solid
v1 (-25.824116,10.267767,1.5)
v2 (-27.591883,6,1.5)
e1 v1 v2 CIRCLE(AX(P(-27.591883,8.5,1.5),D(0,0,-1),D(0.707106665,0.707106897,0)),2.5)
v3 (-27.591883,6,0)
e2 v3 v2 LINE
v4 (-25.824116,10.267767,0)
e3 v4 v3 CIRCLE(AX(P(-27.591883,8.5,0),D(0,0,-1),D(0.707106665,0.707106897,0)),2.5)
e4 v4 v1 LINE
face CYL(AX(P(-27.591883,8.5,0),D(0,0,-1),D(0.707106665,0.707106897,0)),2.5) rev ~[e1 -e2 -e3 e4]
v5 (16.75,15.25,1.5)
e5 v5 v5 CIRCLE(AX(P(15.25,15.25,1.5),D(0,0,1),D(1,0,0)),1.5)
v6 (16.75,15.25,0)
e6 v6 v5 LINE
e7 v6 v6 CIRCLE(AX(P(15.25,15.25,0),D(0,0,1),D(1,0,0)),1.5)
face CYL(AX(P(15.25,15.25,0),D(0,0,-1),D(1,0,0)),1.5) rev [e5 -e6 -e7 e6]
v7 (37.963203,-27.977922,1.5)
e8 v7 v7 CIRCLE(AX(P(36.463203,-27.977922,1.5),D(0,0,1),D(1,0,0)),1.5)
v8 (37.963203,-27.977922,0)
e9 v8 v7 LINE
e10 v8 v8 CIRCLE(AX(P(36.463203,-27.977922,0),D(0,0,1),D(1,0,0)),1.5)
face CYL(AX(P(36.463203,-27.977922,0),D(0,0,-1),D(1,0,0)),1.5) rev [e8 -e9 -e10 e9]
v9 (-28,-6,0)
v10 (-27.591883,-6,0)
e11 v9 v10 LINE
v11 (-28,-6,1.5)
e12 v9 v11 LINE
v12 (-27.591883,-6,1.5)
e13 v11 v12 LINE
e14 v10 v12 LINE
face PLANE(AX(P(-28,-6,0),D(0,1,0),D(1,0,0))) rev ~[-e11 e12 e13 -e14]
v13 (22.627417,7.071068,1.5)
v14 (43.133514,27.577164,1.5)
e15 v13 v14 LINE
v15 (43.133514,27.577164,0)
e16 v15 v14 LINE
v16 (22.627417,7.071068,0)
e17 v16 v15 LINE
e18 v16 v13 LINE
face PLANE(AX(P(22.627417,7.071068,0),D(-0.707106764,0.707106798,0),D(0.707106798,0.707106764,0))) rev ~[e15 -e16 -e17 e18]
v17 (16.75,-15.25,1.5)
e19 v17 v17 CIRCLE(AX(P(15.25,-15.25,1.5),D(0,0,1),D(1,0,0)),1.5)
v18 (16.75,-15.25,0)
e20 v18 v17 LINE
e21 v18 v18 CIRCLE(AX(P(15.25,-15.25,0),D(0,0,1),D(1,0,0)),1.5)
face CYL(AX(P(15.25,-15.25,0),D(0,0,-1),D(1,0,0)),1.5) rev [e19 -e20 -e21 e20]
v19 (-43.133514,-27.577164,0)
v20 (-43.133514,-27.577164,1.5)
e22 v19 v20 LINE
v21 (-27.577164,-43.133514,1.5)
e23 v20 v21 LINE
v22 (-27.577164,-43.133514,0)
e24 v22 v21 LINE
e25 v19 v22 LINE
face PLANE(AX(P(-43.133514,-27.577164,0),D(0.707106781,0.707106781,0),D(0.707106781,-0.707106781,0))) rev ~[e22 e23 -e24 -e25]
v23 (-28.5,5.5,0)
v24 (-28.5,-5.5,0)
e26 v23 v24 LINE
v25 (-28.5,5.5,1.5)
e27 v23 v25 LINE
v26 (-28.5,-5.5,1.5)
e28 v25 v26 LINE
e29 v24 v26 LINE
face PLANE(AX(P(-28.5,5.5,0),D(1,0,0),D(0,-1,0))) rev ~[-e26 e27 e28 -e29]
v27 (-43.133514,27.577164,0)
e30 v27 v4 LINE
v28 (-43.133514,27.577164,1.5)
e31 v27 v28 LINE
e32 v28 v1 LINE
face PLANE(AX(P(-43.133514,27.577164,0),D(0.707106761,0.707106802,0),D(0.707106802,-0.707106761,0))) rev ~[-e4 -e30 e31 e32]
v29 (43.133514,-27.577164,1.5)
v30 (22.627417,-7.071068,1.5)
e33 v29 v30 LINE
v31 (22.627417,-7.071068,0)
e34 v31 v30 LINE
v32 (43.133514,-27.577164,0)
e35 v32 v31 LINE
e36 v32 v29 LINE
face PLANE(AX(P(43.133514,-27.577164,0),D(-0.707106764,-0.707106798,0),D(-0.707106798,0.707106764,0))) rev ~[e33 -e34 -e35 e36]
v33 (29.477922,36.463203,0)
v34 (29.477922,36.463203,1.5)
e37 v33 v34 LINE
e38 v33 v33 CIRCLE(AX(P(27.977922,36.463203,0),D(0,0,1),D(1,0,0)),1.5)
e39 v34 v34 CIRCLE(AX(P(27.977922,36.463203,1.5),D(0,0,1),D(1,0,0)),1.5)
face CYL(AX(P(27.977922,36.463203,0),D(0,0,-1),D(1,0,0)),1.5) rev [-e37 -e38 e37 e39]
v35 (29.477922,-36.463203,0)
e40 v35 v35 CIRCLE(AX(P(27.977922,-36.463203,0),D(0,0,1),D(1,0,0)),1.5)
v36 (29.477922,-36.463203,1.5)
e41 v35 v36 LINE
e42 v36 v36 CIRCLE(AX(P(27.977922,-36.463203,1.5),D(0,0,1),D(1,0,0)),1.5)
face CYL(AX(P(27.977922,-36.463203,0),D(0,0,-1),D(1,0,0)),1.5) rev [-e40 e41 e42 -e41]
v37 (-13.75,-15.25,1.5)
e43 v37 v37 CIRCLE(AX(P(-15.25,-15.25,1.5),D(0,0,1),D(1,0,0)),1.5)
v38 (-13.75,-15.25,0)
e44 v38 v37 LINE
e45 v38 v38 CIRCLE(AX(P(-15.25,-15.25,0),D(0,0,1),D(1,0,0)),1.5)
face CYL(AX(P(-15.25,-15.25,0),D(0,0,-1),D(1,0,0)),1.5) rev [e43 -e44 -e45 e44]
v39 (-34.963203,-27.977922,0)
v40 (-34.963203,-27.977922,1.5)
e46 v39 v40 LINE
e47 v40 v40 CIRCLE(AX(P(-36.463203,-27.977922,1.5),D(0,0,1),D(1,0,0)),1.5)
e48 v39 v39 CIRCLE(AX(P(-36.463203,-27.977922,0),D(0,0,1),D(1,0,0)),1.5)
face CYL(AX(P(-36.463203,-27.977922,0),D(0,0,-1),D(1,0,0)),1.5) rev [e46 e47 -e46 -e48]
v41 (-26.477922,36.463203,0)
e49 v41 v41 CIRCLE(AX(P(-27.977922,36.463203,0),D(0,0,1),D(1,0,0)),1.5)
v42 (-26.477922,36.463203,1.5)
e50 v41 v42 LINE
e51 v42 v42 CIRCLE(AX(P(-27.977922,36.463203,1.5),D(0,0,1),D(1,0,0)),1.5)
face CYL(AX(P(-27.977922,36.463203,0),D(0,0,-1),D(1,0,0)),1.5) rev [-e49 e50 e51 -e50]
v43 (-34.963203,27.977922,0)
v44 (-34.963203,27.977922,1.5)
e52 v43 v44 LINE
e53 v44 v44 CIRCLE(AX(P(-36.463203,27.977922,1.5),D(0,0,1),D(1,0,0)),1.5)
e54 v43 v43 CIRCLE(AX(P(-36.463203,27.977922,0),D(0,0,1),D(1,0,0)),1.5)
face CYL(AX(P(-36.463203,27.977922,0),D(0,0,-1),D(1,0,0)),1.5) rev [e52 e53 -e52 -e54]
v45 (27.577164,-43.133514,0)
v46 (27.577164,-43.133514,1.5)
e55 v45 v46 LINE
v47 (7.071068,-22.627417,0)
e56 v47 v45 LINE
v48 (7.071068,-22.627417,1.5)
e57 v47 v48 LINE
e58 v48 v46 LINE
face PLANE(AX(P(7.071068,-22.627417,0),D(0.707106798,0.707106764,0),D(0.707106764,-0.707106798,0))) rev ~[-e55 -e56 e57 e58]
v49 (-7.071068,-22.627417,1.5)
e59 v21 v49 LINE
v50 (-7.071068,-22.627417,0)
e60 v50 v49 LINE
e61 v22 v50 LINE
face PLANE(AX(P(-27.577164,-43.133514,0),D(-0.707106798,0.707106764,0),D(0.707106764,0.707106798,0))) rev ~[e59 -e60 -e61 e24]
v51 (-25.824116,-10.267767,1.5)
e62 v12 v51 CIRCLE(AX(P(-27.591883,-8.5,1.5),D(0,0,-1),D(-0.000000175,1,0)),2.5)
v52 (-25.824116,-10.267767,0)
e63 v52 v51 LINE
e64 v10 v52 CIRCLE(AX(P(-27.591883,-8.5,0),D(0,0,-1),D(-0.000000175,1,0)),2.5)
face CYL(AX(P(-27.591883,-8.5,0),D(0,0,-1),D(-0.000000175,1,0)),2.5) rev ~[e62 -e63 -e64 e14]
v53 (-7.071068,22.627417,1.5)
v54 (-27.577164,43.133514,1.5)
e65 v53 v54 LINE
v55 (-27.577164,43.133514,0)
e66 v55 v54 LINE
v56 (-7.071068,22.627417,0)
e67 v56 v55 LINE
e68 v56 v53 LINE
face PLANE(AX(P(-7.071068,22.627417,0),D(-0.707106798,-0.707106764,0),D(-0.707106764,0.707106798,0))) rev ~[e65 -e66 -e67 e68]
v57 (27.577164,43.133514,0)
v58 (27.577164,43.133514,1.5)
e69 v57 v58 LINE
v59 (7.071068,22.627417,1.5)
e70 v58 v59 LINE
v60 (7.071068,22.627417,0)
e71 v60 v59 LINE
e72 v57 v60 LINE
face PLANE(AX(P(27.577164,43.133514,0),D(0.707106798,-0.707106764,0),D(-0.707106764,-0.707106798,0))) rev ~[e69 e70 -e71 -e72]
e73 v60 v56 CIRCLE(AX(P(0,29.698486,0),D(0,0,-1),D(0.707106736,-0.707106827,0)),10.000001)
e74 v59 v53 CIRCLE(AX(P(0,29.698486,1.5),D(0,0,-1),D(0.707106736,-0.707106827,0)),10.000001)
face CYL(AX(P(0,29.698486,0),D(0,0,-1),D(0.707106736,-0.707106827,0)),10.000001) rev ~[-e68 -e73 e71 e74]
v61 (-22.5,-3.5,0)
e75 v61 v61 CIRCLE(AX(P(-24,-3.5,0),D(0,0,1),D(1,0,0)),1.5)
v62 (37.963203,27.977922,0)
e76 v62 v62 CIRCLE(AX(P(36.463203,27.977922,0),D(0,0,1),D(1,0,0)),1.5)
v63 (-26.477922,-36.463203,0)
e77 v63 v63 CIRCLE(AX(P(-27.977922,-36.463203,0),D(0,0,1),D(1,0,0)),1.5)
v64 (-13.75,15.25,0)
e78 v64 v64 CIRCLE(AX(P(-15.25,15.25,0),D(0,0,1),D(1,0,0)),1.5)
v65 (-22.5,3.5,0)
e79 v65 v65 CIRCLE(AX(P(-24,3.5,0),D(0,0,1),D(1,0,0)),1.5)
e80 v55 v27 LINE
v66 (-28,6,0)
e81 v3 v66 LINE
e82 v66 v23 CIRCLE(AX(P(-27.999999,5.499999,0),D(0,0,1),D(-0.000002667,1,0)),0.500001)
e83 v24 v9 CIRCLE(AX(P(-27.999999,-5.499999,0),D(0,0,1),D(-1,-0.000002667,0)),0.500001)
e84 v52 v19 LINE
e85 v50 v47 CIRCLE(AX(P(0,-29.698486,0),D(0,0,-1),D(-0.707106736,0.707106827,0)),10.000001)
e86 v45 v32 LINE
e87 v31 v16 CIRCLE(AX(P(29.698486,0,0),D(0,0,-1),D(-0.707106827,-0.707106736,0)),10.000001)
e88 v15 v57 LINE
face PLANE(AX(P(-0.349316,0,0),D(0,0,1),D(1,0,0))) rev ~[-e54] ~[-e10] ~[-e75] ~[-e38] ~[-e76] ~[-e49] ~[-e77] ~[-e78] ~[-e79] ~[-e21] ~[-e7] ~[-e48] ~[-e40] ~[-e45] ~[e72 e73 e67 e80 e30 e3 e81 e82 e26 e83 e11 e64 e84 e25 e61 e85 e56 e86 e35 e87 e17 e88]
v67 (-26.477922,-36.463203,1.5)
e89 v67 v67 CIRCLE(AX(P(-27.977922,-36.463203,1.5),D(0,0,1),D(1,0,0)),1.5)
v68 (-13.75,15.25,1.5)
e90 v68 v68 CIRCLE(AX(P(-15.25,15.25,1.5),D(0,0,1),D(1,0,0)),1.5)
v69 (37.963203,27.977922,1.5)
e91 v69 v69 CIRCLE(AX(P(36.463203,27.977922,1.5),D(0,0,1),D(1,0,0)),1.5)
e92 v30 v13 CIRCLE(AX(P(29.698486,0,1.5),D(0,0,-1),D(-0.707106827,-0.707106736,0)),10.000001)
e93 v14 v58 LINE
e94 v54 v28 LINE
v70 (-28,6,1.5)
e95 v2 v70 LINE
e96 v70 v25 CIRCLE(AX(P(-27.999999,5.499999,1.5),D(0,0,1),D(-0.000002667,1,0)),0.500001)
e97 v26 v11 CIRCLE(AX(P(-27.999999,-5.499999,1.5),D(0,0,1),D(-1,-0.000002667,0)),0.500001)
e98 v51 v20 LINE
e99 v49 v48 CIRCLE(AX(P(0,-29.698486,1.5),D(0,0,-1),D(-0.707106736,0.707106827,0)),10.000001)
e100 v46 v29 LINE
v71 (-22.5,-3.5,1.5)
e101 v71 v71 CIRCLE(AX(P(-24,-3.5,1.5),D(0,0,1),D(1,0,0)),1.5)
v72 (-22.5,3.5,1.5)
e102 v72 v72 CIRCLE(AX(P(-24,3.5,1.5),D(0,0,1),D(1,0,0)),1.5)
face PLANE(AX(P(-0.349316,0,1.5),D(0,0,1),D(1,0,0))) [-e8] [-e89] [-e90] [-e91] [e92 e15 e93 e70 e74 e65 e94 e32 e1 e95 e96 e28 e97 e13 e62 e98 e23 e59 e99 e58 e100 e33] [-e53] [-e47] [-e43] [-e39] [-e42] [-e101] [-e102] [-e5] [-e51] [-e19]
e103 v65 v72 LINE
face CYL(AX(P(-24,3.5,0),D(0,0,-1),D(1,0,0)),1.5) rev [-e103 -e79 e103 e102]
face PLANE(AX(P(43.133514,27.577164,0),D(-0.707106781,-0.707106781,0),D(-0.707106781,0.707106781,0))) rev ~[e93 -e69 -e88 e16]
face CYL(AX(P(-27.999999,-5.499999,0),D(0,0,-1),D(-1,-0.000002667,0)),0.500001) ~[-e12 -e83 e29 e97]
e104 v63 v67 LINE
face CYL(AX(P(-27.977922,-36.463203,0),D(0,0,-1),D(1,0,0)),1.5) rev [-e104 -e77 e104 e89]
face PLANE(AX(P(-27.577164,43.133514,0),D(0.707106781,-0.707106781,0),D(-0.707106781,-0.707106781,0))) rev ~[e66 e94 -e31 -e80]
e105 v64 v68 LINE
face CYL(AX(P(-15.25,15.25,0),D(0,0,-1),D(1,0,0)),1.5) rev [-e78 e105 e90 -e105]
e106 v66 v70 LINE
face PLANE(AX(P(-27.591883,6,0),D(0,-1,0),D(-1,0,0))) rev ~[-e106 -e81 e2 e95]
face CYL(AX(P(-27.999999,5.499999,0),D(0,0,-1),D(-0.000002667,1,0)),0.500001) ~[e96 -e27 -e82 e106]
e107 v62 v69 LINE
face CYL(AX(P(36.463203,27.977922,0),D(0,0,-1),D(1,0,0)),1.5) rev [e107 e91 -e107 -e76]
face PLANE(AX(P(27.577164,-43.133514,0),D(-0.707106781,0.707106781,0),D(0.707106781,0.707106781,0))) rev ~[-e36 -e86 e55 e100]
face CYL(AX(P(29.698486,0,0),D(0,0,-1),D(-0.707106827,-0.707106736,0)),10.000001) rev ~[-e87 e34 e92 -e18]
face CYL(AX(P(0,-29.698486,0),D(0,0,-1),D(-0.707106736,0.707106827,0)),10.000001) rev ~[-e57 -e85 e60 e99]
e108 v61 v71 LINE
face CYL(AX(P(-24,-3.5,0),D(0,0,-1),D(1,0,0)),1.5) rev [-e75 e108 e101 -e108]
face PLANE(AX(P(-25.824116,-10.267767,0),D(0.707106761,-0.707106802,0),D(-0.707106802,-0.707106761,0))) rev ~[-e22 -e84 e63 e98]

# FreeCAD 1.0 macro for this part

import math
import FreeCAD as App
import Part
import Sketcher
Q = App.Units.Quantity

doc = App.newDocument("Part")
body = doc.addObject("PartDesign::Body", "Body")

sketch1 = doc.addObject("Sketcher::SketchObject", "Sketch")
body.addObject(sketch1)
sketch1.AttachmentSupport = (doc.XY_Plane, [""])
sketch1.MapMode = "FlatFace"
sketch1.addGeometry([
    Part.LineSegment(App.Vector(-27.58, 43.13, 0), App.Vector(-43.13, 27.58, 0)),
    Part.LineSegment(App.Vector(-43.13, 27.58, 0), App.Vector(-25.82, 10.27, 0)),
    Part.ArcOfCircle(Part.Circle(App.Vector(-27.59, 8.5, 0), App.Vector(0, 0, 1), 2.5), math.radians(-90), math.radians(45)),
    Part.LineSegment(App.Vector(-27.59, 6, 0), App.Vector(-28, 6, 0)),
    Part.ArcOfCircle(Part.Circle(App.Vector(-28, 5.5, 0), App.Vector(0, 0, 1), 0.5), math.radians(90), math.radians(180)),
    Part.LineSegment(App.Vector(-28.5, 5.5, 0), App.Vector(-28.5, -5.5, 0)),
    Part.ArcOfCircle(Part.Circle(App.Vector(-28, -5.5, 0), App.Vector(0, 0, 1), 0.5), math.radians(-180), math.radians(-90)),
    Part.LineSegment(App.Vector(-28, -6, 0), App.Vector(-27.59, -6, 0)),
    Part.ArcOfCircle(Part.Circle(App.Vector(-27.59, -8.5, 0), App.Vector(0, 0, 1), 2.5), math.radians(-45), math.radians(90)),
    Part.LineSegment(App.Vector(-25.82, -10.27, 0), App.Vector(-43.13, -27.58, 0)),
    Part.LineSegment(App.Vector(-43.13, -27.58, 0), App.Vector(-27.58, -43.13, 0)),
    Part.LineSegment(App.Vector(-27.58, -43.13, 0), App.Vector(-7.07, -22.63, 0)),
    Part.ArcOfCircle(Part.Circle(App.Vector(0, -29.7, 0), App.Vector(0, 0, 1), 10), math.radians(45), math.radians(135)),
    Part.LineSegment(App.Vector(7.07, -22.63, 0), App.Vector(27.58, -43.13, 0)),
    Part.LineSegment(App.Vector(27.58, -43.13, 0), App.Vector(43.13, -27.58, 0)),
    Part.LineSegment(App.Vector(43.13, -27.58, 0), App.Vector(22.63, -7.07, 0)),
    Part.ArcOfCircle(Part.Circle(App.Vector(29.7, 0, 0), App.Vector(0, 0, 1), 10), math.radians(135), math.radians(225)),
    Part.LineSegment(App.Vector(22.63, 7.07, 0), App.Vector(43.13, 27.58, 0)),
    Part.LineSegment(App.Vector(43.13, 27.58, 0), App.Vector(27.58, 43.13, 0)),
    Part.LineSegment(App.Vector(27.58, 43.13, 0), App.Vector(7.07, 22.63, 0)),
    Part.ArcOfCircle(Part.Circle(App.Vector(0, 29.7, 0), App.Vector(0, 0, 1), 10), math.radians(-135), math.radians(-45)),
    Part.LineSegment(App.Vector(-7.07, 22.63, 0), App.Vector(-27.58, 43.13, 0)),
    Part.Circle(App.Vector(-27.98, -36.46, 0), App.Vector(0, 0, 1), 1.5),
    Part.Circle(App.Vector(-36.46, -27.98, 0), App.Vector(0, 0, 1), 1.5),
    Part.Circle(App.Vector(-24, -3.5, 0), App.Vector(0, 0, 1), 1.5),
    Part.Circle(App.Vector(-15.25, -15.25, 0), App.Vector(0, 0, 1), 1.5),
    Part.Circle(App.Vector(27.98, -36.46, 0), App.Vector(0, 0, 1), 1.5),
    Part.Circle(App.Vector(36.46, -27.98, 0), App.Vector(0, 0, 1), 1.5),
    Part.Circle(App.Vector(15.25, -15.25, 0), App.Vector(0, 0, 1), 1.5),
    Part.Circle(App.Vector(-24, 3.5, 0), App.Vector(0, 0, 1), 1.5),
    Part.Circle(App.Vector(-15.25, 15.25, 0), App.Vector(0, 0, 1), 1.5),
    Part.Circle(App.Vector(-36.46, 27.98, 0), App.Vector(0, 0, 1), 1.5),
    Part.Circle(App.Vector(-27.98, 36.46, 0), App.Vector(0, 0, 1), 1.5),
    Part.Circle(App.Vector(15.25, 15.25, 0), App.Vector(0, 0, 1), 1.5),
    Part.Circle(App.Vector(36.46, 27.98, 0), App.Vector(0, 0, 1), 1.5),
    Part.Circle(App.Vector(27.98, 36.46, 0), App.Vector(0, 0, 1), 1.5),
], False)
sketch1.addConstraint([
    Sketcher.Constraint("Coincident", 0, 2, 1, 1),
    Sketcher.Constraint("Tangent", 1, 2, 2, 2),
    Sketcher.Constraint("Tangent", 2, 1, 3, 1),
    Sketcher.Constraint("Coincident", 3, 2, 4, 1),
    Sketcher.Constraint("Coincident", 4, 2, 5, 1),
    Sketcher.Constraint("Coincident", 5, 2, 6, 1),
    Sketcher.Constraint("Coincident", 6, 2, 7, 1),
    Sketcher.Constraint("Tangent", 7, 2, 8, 2),
    Sketcher.Constraint("Tangent", 8, 1, 9, 1),
    Sketcher.Constraint("Coincident", 9, 2, 10, 1),
    Sketcher.Constraint("Coincident", 10, 2, 11, 1),
    Sketcher.Constraint("Tangent", 11, 2, 12, 2),
    Sketcher.Constraint("Tangent", 12, 1, 13, 1),
    Sketcher.Constraint("Coincident", 13, 2, 14, 1),
    Sketcher.Constraint("Coincident", 14, 2, 15, 1),
    Sketcher.Constraint("Tangent", 15, 2, 16, 2),
    Sketcher.Constraint("Tangent", 16, 1, 17, 1),
    Sketcher.Constraint("Coincident", 17, 2, 18, 1),
    Sketcher.Constraint("Coincident", 18, 2, 19, 1),
    Sketcher.Constraint("Tangent", 19, 2, 20, 2),
    Sketcher.Constraint("Tangent", 20, 1, 21, 1),
    Sketcher.Constraint("Coincident", 21, 2, 0, 1),
    Sketcher.Constraint("Horizontal", 3),
    Sketcher.Constraint("Vertical", 5),
    Sketcher.Constraint("Horizontal", 7),
    Sketcher.Constraint("Equal", 4, 6),
    Sketcher.Constraint("Equal", 2, 8),
    Sketcher.Constraint("Equal", 12, 16),
    Sketcher.Constraint("Equal", 16, 20),
    Sketcher.Constraint("Equal", 22, 23),
    Sketcher.Constraint("Equal", 23, 24),
    Sketcher.Constraint("Equal", 24, 25),
    Sketcher.Constraint("Equal", 25, 26),
    Sketcher.Constraint("Equal", 26, 27),
    Sketcher.Constraint("Equal", 27, 28),
    Sketcher.Constraint("Equal", 28, 29),
    Sketcher.Constraint("Equal", 29, 30),
    Sketcher.Constraint("Equal", 30, 31),
    Sketcher.Constraint("Equal", 31, 32),
    Sketcher.Constraint("Equal", 32, 33),
    Sketcher.Constraint("Equal", 33, 34),
    Sketcher.Constraint("Equal", 34, 35),
    Sketcher.Constraint("Symmetric", 12, 3, 20, 3, -1, 1),
    Sketcher.Constraint("Symmetric", 28, 3, 30, 3, -1, 1),
    Sketcher.Constraint("Symmetric", 27, 3, 31, 3, -1, 1),
    Sketcher.Constraint("Symmetric", 26, 3, 32, 3, -1, 1),
    Sketcher.Constraint("Symmetric", 25, 3, 33, 3, -1, 1),
    Sketcher.Constraint("Symmetric", 23, 3, 34, 3, -1, 1),
    Sketcher.Constraint("Symmetric", 22, 3, 35, 3, -1, 1),
    Sketcher.Constraint("Symmetric", 0, 2, 14, 2, -1, 1),
    Sketcher.Constraint("Symmetric", 9, 2, 17, 2, -1, 1),
    Sketcher.Constraint("Symmetric", 10, 2, 18, 2, -1, 1),
    Sketcher.Constraint("Symmetric", 13, 2, 21, 2, -1, 1),
    Sketcher.Constraint("Symmetric", 22, 3, 26, 3, -2),
    Sketcher.Constraint("Symmetric", 23, 3, 27, 3, -2),
    Sketcher.Constraint("Symmetric", 25, 3, 28, 3, -2),
    Sketcher.Constraint("Symmetric", 11, 2, 12, 1, -2),
    Sketcher.Constraint("Symmetric", 9, 2, 14, 2, -2),
    Sketcher.Constraint("Symmetric", 2, 3, 8, 3, -1),
    Sketcher.Constraint("Symmetric", 24, 3, 29, 3, -1),
    Sketcher.Constraint("PointOnObject", 16, 3, -1),
    Sketcher.Constraint("Perpendicular", 0, 1),
    Sketcher.Constraint("Perpendicular", 1, 9),
    Sketcher.Constraint("Perpendicular", 9, 10),
    Sketcher.Constraint("Perpendicular", 10, 11),
    Sketcher.Constraint("Perpendicular", 14, 15),
    Sketcher.Constraint("Horizontal", 6, 3, 5, 2),
    Sketcher.Constraint("Vertical", 6, 3, 3, 2),
    Sketcher.Constraint("Vertical", 3, 2, 6, 2),
    Sketcher.Constraint("Equal", 13, 15),
    Sketcher.Constraint("Diameter", 22, Q("3 mm")),
    Sketcher.Constraint("Radius", 12, Q("10.000001 mm")),
    Sketcher.Constraint("Radius", 2, Q("2.5 mm")),
    Sketcher.Constraint("Radius", 4, Q("0.500001 mm")),
    Sketcher.Constraint("DistanceY", 5, 2, 5, 1, Q("11 mm")),
    Sketcher.Constraint("Distance", 0, Q("22.000001 mm")),
    Sketcher.Constraint("Distance", 11, Q("29 mm")),
    Sketcher.Constraint("DistanceX", 4, 3, -1, 1, Q("27.999999 mm")),
    Sketcher.Constraint("DistanceX", 24, 3, -1, 1, Q("24 mm")),
    Sketcher.Constraint("DistanceY", -1, 1, 2, 1, Q("6 mm")),
    Sketcher.Constraint("DistanceY", 6, 3, 24, 3, Q("1.999999 mm")),
    Sketcher.Constraint("DistanceX", 25, 3, 28, 3, Q("30.5 mm")),
    Sketcher.Constraint("DistanceY", 28, 3, 33, 3, Q("30.5 mm")),
    Sketcher.Constraint("DistanceY", 22, 3, 4, 3, Q("41.963202 mm")),
    Sketcher.Constraint("DistanceX", 22, 3, -1, 1, Q("27.977922 mm")),
    Sketcher.Constraint("DistanceY", 23, 3, -1, 1, Q("27.977922 mm")),
    Sketcher.Constraint("DistanceX", 23, 3, 22, 3, Q("8.485281 mm")),
])
pad1 = doc.addObject("PartDesign::Pad", "Pad")
body.addObject(pad1)
pad1.Profile = sketch1
pad1.Length = 1.5

doc.recompute()
